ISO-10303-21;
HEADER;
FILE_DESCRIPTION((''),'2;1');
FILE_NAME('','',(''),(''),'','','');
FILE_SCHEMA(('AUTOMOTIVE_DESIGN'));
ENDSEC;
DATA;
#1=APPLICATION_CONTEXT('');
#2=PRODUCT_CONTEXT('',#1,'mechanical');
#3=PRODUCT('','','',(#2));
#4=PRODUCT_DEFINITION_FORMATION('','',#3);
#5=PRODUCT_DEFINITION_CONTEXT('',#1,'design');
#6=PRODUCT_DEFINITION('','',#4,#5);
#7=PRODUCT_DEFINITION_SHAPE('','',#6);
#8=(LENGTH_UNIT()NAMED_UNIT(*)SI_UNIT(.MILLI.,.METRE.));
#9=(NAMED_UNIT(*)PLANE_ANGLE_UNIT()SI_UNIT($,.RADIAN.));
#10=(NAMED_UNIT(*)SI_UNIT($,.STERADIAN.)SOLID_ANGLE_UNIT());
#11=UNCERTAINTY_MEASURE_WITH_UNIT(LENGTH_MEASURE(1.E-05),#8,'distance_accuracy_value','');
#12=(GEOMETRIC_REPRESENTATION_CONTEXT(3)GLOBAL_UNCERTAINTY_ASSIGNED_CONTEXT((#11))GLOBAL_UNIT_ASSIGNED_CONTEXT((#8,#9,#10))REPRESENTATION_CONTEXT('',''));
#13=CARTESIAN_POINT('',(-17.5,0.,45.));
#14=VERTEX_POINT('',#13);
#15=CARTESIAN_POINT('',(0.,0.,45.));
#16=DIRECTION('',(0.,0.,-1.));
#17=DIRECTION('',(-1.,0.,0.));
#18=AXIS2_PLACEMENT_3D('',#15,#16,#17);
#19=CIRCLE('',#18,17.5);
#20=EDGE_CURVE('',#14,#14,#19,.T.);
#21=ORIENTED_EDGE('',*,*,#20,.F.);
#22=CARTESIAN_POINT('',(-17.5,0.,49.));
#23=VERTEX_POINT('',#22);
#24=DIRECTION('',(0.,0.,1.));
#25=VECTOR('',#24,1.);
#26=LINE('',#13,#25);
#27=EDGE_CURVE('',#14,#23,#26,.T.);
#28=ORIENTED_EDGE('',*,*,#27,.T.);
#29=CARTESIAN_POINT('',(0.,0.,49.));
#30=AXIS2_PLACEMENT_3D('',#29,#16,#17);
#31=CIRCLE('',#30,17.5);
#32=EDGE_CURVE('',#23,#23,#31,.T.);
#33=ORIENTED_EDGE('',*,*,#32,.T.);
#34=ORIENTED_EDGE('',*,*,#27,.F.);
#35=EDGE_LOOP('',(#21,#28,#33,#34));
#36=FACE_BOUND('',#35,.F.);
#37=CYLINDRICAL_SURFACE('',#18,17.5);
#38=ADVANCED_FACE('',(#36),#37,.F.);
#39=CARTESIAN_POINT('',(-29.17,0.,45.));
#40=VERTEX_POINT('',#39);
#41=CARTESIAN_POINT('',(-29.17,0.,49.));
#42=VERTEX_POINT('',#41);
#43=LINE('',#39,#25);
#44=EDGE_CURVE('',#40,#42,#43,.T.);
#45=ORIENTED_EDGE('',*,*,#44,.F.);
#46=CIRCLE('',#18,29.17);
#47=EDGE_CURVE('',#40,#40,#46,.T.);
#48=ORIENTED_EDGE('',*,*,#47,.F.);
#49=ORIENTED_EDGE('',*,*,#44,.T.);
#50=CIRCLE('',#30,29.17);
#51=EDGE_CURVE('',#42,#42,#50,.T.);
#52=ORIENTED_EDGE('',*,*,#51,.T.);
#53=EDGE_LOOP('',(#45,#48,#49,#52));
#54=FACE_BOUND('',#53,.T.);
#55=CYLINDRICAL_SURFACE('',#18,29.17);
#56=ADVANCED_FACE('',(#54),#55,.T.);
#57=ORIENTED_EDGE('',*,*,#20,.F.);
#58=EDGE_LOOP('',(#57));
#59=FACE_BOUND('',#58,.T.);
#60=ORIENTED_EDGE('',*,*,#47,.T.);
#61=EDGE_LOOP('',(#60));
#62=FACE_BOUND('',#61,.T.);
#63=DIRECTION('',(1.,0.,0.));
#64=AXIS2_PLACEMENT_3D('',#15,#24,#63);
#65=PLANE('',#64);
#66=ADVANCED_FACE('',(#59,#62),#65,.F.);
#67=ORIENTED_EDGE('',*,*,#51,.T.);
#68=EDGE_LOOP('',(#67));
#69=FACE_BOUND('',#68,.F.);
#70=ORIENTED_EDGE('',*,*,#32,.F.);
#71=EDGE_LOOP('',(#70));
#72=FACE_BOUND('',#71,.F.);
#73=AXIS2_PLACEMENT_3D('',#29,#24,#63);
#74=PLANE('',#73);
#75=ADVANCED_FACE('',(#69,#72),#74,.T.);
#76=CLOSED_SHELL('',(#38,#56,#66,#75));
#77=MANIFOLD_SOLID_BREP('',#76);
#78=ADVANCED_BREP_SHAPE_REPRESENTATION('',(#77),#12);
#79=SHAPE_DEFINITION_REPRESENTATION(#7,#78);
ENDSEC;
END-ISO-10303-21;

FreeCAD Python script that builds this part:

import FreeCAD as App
import Part
import Sketcher

V = App.Vector

doc = App.newDocument("Part")
params = doc.addObject("Spreadsheet::Sheet", "Params")
for row, (alias, value) in enumerate([
    ("sketch1_diameter", "35 mm"),
    ("pad1_length", "4 mm"),
    ("sketch2_diameter", "58.34 mm"),
    ("pad2_length", "4 mm"),
], start=1):
    params.set(f"A{row}", alias)
    params.set(f"B{row}", "=" + value)
    params.setAlias(f"B{row}", alias)

body = doc.addObject("PartDesign::Body", "Body")

sketch1 = body.newObject("Sketcher::SketchObject", "Sketch")
sketch1.AttachmentSupport = (doc.getObject("XY_Plane"), [""])
sketch1.MapMode = "FlatFace"
sketch1.AttachmentOffset = App.Placement(V(0, 0, 45), App.Rotation())
sketch1.addGeometry(Part.Circle(V(0, 0, 0), V(0, 0, 1), 17.5), False)
sketch1.addConstraint(Sketcher.Constraint("Coincident", 0, 3, -1, 1))
sketch1.addConstraint(Sketcher.Constraint("Diameter", 0, 35.0))
sketch1.setExpression("Constraints[1]", "Params.sketch1_diameter")
pad1 = body.newObject("PartDesign::Pad", "Pad")
pad1.Profile = sketch1
pad1.setExpression("Length", "Params.pad1_length")
body2 = doc.addObject("PartDesign::Body", "Body001")

sketch2 = body2.newObject("Sketcher::SketchObject", "Sketch001")
sketch2.AttachmentSupport = (doc.getObject("XY_Plane001"), [""])
sketch2.MapMode = "FlatFace"
sketch2.AttachmentOffset = App.Placement(V(0, 0, 45), App.Rotation())
sketch2.addGeometry(Part.Circle(V(0, 0, 0), V(0, 0, 1), 29.17), False)
sketch2.addConstraint(Sketcher.Constraint("Coincident", 0, 3, -1, 1))
sketch2.addConstraint(Sketcher.Constraint("Diameter", 0, 58.34))
sketch2.setExpression("Constraints[1]", "Params.sketch2_diameter")
pad2 = body2.newObject("PartDesign::Pad", "Pad001")
pad2.Profile = sketch2
pad2.setExpression("Length", "Params.pad2_length")
doc.recompute()

boolean = body2.newObject("PartDesign::Boolean", "Boolean")
boolean.Type = "Cut"
boolean.addObjects([body])
body3 = doc.addObject("PartDesign::Body", "Body002")
doc.recompute()

mirroring = doc.addObject("Part::Mirroring", "Mirroring")
mirroring.Source = body2
mirroring.Base = V(0, 0, 0)
mirroring.Normal = V(1, 0, 0)
body3.BaseFeature = mirroring
doc.recompute()
body2.Visibility = False
mirroring.Visibility = False

doc.recompute()
